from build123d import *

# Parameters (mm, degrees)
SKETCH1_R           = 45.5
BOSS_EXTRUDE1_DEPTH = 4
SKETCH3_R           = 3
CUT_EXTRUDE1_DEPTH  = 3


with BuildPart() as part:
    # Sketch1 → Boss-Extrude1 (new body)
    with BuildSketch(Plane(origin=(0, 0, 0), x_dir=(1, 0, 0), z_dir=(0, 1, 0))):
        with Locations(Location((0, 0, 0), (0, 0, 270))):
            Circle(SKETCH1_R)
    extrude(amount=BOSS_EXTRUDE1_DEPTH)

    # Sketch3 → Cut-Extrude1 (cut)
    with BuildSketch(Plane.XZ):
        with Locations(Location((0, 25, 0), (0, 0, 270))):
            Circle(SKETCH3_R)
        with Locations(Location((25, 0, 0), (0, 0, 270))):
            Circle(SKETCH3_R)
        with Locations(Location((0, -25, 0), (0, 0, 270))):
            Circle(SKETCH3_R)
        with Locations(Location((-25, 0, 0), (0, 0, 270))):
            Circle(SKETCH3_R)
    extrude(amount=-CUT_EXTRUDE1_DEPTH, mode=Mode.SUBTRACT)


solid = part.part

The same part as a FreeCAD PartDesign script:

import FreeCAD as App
import Part
import Sketcher

doc = App.newDocument("Part")
params = doc.addObject("Spreadsheet::Sheet", "Params")
for row, (alias, value) in enumerate([
    ("sketch1_diameter", "91 mm"),
    ("pad1_length", "4 mm"),
    ("sketch2_diameter", "6 mm"),
    ("pocket1_length", "3 mm"),
], start=1):
    params.set(f"A{row}", alias)
    params.set(f"B{row}", "=" + value)
    params.setAlias(f"B{row}", alias)

body = doc.addObject("PartDesign::Body", "Body")

# Sketch on XZ plane
sketch1 = body.newObject("Sketcher::SketchObject", "Sketch")
sketch1.AttachmentSupport = (doc.getObject("XZ_Plane"), [""])
sketch1.MapMode = "FlatFace"
sketch1.addGeometry(Part.Circle(App.Vector(0, 0, 0), App.Vector(0, 0, 1), 46), False)
sketch1.addConstraint([
    Sketcher.Constraint("Coincident", 0, 3, -1, 1),
    Sketcher.Constraint("Diameter", 0, 91.0),
])
sketch1.setExpression("Constraints[1]", "Params.sketch1_diameter")
pad1 = body.newObject("PartDesign::Pad", "Pad")
pad1.Profile = sketch1
pad1.setExpression("Length", "Params.pad1_length")
pad1.Reversed = True

# Sketch on XZ plane
sketch2 = body.newObject("Sketcher::SketchObject", "Sketch001")
sketch2.AttachmentSupport = (doc.getObject("XZ_Plane"), [""])
sketch2.MapMode = "FlatFace"
sketch2.addGeometry([
    Part.Circle(App.Vector(0, 25, 0), App.Vector(0, 0, 1), 3),
    Part.Circle(App.Vector(25, 0, 0), App.Vector(0, 0, 1), 3),
    Part.Circle(App.Vector(0, -25, 0), App.Vector(0, 0, 1), 3),
    Part.Circle(App.Vector(-25, 0, 0), App.Vector(0, 0, 1), 3),
], False)
sketch2.addConstraint([
    Sketcher.Constraint("Equal", 0, 1),
    Sketcher.Constraint("Equal", 1, 2),
    Sketcher.Constraint("Equal", 2, 3),
    Sketcher.Constraint("Symmetric", 0, 3, 2, 3, -1, 1),
    Sketcher.Constraint("Symmetric", 1, 3, 3, 3, -1, 1),
    Sketcher.Constraint("PointOnObject", 0, 3, -2),
    Sketcher.Constraint("PointOnObject", 1, 3, -1),
    Sketcher.Constraint("Diameter", 0, 6.0),
    Sketcher.Constraint("DistanceY", -1, 1, 0, 3, 25.0),
    Sketcher.Constraint("DistanceX", -1, 1, 1, 3, 25.0),
])
sketch2.setExpression("Constraints[7]", "Params.sketch2_diameter")
pocket1 = body.newObject("PartDesign::Pocket", "Pocket")
pocket1.Profile = sketch2
pocket1.setExpression("Length", "Params.pocket1_length")

doc.recompute()
